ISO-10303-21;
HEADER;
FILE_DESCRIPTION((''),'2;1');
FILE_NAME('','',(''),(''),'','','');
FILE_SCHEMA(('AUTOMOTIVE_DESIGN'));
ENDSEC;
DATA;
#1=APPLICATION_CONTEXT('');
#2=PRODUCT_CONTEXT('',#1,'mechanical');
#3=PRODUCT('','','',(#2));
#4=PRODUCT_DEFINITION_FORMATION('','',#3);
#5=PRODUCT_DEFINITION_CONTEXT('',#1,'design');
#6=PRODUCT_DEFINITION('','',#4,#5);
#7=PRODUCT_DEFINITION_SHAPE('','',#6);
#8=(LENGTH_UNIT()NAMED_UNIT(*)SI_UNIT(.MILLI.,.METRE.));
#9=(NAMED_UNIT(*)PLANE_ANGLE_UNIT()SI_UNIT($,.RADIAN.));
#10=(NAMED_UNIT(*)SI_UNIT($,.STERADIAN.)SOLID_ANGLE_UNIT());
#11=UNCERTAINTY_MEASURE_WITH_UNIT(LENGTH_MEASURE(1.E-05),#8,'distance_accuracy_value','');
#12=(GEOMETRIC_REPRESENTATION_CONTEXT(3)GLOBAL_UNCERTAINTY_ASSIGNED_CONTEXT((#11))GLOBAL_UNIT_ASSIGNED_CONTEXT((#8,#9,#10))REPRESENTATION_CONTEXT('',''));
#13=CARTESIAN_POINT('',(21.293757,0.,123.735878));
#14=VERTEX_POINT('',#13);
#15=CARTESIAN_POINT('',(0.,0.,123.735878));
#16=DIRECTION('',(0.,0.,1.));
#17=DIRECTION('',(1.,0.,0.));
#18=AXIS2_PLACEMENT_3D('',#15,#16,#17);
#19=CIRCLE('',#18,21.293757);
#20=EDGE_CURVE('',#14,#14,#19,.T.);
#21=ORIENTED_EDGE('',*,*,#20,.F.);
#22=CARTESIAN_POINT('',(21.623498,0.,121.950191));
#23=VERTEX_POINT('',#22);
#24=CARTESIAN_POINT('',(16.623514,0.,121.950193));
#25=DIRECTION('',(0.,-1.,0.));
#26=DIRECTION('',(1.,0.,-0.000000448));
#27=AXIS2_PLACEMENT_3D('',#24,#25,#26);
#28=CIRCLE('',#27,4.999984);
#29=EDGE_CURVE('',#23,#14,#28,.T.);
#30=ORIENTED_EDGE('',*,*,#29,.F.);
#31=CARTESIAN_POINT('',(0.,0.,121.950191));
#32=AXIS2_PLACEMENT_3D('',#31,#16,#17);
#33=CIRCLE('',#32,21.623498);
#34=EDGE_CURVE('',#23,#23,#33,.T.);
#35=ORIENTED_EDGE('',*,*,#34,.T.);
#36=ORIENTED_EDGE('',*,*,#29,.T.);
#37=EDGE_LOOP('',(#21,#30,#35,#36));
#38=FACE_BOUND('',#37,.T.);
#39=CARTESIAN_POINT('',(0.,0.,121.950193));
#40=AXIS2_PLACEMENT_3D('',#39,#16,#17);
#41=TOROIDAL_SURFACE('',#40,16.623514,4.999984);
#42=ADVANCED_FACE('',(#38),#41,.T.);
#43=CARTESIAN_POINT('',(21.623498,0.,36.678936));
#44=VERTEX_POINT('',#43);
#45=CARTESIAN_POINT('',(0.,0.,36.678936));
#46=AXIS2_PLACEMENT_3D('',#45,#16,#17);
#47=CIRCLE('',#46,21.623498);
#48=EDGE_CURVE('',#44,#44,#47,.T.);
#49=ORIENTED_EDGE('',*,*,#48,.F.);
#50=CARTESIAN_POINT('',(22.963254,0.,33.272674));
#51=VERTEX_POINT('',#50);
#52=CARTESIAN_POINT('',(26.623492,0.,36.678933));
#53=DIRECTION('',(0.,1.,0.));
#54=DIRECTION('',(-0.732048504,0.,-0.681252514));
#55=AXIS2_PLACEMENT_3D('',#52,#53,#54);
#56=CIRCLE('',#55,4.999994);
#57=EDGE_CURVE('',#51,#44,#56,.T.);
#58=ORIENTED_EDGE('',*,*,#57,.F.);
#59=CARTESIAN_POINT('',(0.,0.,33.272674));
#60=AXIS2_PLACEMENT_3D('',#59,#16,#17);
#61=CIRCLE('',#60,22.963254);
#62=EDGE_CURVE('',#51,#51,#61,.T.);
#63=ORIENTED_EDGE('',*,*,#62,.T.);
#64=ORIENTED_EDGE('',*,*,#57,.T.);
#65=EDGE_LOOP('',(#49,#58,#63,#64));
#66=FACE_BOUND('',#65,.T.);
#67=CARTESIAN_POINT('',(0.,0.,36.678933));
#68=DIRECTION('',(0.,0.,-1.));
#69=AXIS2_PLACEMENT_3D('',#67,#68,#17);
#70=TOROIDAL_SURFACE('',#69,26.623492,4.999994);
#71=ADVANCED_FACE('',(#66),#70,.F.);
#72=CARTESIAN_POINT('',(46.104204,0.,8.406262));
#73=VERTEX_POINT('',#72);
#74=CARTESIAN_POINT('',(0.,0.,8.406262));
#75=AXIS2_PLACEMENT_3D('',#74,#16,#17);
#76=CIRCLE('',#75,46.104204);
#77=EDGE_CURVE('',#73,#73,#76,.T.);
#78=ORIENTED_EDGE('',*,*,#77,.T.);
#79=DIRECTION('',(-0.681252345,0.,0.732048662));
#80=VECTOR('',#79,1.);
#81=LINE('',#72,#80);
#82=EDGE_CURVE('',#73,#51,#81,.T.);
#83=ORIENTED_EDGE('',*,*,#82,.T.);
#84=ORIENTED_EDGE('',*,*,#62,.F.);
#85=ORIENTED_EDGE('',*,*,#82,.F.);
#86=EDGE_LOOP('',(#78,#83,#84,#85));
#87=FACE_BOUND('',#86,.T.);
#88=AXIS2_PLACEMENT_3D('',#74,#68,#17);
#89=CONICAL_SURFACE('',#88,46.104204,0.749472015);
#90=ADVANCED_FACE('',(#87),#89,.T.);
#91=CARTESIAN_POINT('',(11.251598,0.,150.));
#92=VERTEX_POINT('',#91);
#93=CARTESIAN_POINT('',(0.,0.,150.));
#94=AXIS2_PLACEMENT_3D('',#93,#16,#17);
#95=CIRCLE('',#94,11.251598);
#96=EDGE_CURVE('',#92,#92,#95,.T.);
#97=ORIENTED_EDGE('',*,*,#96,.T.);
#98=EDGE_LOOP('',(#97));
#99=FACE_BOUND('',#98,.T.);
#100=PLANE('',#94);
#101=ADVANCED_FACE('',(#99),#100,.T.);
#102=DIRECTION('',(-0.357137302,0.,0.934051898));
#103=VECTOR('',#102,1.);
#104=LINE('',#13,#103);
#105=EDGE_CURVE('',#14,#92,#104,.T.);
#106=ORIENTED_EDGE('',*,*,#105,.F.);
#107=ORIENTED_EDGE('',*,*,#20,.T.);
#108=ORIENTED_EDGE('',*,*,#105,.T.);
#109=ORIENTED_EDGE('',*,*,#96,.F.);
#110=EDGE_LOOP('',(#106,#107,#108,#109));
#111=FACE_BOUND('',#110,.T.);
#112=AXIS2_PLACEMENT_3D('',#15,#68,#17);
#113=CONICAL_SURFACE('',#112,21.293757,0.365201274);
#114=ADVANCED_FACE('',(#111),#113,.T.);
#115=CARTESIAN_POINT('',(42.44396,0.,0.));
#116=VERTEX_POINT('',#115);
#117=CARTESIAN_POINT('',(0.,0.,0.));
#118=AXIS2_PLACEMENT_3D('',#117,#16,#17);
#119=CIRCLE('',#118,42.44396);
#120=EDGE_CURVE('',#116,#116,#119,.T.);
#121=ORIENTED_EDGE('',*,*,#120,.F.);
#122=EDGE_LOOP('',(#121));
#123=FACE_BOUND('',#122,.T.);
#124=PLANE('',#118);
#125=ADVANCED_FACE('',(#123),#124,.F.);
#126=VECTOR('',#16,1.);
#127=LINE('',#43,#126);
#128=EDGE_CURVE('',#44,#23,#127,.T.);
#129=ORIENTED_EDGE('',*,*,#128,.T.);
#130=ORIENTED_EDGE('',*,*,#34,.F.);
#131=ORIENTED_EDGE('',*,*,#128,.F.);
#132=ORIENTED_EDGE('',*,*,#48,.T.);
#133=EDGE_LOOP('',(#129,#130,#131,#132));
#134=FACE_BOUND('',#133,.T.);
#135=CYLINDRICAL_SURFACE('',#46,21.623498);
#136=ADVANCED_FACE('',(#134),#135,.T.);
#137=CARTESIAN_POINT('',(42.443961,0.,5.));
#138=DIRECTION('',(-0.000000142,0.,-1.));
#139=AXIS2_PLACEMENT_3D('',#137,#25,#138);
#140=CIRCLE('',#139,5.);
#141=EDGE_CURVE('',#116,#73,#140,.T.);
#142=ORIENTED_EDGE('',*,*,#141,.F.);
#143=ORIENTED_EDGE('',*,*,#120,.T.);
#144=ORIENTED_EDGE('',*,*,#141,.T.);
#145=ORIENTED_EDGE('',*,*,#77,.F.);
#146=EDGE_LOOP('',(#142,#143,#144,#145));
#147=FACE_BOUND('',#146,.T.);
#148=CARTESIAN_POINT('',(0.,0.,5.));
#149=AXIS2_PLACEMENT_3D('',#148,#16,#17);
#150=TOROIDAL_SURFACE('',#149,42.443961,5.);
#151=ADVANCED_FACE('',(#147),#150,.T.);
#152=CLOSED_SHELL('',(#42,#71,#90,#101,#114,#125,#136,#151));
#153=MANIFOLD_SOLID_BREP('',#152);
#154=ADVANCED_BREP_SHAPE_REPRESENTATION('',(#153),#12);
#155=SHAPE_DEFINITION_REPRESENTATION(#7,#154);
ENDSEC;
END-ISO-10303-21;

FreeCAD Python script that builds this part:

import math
import FreeCAD as App
import Part
import Sketcher
from FreeCAD import Vector

doc = App.newDocument("Part")
body = doc.addObject("PartDesign::Body", "Body")

sketch1 = body.newObject("Sketcher::SketchObject", "Sketch")
sketch1.AttachmentSupport = (doc.getObject("XZ_Plane"), [""])
sketch1.MapMode = "FlatFace"
sketch1.addGeometry(Part.LineSegment(Vector(0, 150, 0), Vector(0, 0, 0)), False)
sketch1.addGeometry(Part.LineSegment(Vector(0, 0, 0), Vector(42.4, 0, 0)), False)
sketch1.addGeometry(Part.ArcOfCircle(Part.Circle(Vector(42.4, 5, 0), Vector(0, 0, 1), 5), math.radians(-90), math.radians(43)), False)
sketch1.addGeometry(Part.LineSegment(Vector(46.1, 8.4, 0), Vector(23, 33.3, 0)), False)
sketch1.addGeometry(Part.ArcOfCircle(Part.Circle(Vector(26.6, 36.7, 0), Vector(0, 0, 1), 5), math.radians(180), math.radians(223)), False)
sketch1.addGeometry(Part.LineSegment(Vector(21.6, 36.7, 0), Vector(21.6, 122, 0)), False)
sketch1.addGeometry(Part.ArcOfCircle(Part.Circle(Vector(16.6, 122, 0), Vector(0, 0, 1), 5), math.radians(0), math.radians(21)), False)
sketch1.addGeometry(Part.LineSegment(Vector(21.3, 123.7, 0), Vector(11.3, 150, 0)), False)
sketch1.addGeometry(Part.LineSegment(Vector(11.3, 150, 0), Vector(0, 150, 0)), False)
sketch1.addConstraint(Sketcher.Constraint("Coincident", 0, 2, 1, 1))
sketch1.addConstraint(Sketcher.Constraint("Tangent", 1, 2, 2, 1))
sketch1.addConstraint(Sketcher.Constraint("Tangent", 2, 2, 3, 1))
sketch1.addConstraint(Sketcher.Constraint("Tangent", 3, 2, 4, 2))
sketch1.addConstraint(Sketcher.Constraint("Tangent", 4, 1, 5, 1))
sketch1.addConstraint(Sketcher.Constraint("Tangent", 5, 2, 6, 1))
sketch1.addConstraint(Sketcher.Constraint("Tangent", 6, 2, 7, 1))
sketch1.addConstraint(Sketcher.Constraint("Coincident", 7, 2, 8, 1))
sketch1.addConstraint(Sketcher.Constraint("Coincident", 8, 2, 0, 1))
sketch1.addConstraint(Sketcher.Constraint("Vertical", 0))
sketch1.addConstraint(Sketcher.Constraint("Horizontal", 1))
sketch1.addConstraint(Sketcher.Constraint("Vertical", 5))
sketch1.addConstraint(Sketcher.Constraint("Horizontal", 8))
sketch1.addConstraint(Sketcher.Constraint("Coincident", 0, 2, -1, 1))
sketch1.addConstraint(Sketcher.Constraint("Radius", 2, 5.0))
sketch1.addConstraint(Sketcher.Constraint("DistanceY", 0, 2, 0, 1, 150.0))
sketch1.addConstraint(Sketcher.Constraint("Radius", 4, 4.999994))
sketch1.addConstraint(Sketcher.Constraint("Radius", 6, 4.999984))
sketch1.addConstraint(Sketcher.Constraint("DistanceX", 1, 1, 1, 2, 42.44396))
sketch1.addConstraint(Sketcher.Constraint("DistanceX", -1, 1, 4, 1, 21.623498))
sketch1.addConstraint(Sketcher.Constraint("DistanceX", 7, 2, 5, 2, 10.3719))
sketch1.addConstraint(Sketcher.Constraint("Distance", 3, 33.96825))
sketch1.addConstraint(Sketcher.Constraint("DistanceY", 5, 1, 5, 2, 85.271255))
revolution = body.newObject("PartDesign::Revolution", "Revolution")
revolution.Profile = sketch1
revolution.ReferenceAxis = (sketch1, ["V_Axis"])
revolution.Angle = 360

doc.recompute()
